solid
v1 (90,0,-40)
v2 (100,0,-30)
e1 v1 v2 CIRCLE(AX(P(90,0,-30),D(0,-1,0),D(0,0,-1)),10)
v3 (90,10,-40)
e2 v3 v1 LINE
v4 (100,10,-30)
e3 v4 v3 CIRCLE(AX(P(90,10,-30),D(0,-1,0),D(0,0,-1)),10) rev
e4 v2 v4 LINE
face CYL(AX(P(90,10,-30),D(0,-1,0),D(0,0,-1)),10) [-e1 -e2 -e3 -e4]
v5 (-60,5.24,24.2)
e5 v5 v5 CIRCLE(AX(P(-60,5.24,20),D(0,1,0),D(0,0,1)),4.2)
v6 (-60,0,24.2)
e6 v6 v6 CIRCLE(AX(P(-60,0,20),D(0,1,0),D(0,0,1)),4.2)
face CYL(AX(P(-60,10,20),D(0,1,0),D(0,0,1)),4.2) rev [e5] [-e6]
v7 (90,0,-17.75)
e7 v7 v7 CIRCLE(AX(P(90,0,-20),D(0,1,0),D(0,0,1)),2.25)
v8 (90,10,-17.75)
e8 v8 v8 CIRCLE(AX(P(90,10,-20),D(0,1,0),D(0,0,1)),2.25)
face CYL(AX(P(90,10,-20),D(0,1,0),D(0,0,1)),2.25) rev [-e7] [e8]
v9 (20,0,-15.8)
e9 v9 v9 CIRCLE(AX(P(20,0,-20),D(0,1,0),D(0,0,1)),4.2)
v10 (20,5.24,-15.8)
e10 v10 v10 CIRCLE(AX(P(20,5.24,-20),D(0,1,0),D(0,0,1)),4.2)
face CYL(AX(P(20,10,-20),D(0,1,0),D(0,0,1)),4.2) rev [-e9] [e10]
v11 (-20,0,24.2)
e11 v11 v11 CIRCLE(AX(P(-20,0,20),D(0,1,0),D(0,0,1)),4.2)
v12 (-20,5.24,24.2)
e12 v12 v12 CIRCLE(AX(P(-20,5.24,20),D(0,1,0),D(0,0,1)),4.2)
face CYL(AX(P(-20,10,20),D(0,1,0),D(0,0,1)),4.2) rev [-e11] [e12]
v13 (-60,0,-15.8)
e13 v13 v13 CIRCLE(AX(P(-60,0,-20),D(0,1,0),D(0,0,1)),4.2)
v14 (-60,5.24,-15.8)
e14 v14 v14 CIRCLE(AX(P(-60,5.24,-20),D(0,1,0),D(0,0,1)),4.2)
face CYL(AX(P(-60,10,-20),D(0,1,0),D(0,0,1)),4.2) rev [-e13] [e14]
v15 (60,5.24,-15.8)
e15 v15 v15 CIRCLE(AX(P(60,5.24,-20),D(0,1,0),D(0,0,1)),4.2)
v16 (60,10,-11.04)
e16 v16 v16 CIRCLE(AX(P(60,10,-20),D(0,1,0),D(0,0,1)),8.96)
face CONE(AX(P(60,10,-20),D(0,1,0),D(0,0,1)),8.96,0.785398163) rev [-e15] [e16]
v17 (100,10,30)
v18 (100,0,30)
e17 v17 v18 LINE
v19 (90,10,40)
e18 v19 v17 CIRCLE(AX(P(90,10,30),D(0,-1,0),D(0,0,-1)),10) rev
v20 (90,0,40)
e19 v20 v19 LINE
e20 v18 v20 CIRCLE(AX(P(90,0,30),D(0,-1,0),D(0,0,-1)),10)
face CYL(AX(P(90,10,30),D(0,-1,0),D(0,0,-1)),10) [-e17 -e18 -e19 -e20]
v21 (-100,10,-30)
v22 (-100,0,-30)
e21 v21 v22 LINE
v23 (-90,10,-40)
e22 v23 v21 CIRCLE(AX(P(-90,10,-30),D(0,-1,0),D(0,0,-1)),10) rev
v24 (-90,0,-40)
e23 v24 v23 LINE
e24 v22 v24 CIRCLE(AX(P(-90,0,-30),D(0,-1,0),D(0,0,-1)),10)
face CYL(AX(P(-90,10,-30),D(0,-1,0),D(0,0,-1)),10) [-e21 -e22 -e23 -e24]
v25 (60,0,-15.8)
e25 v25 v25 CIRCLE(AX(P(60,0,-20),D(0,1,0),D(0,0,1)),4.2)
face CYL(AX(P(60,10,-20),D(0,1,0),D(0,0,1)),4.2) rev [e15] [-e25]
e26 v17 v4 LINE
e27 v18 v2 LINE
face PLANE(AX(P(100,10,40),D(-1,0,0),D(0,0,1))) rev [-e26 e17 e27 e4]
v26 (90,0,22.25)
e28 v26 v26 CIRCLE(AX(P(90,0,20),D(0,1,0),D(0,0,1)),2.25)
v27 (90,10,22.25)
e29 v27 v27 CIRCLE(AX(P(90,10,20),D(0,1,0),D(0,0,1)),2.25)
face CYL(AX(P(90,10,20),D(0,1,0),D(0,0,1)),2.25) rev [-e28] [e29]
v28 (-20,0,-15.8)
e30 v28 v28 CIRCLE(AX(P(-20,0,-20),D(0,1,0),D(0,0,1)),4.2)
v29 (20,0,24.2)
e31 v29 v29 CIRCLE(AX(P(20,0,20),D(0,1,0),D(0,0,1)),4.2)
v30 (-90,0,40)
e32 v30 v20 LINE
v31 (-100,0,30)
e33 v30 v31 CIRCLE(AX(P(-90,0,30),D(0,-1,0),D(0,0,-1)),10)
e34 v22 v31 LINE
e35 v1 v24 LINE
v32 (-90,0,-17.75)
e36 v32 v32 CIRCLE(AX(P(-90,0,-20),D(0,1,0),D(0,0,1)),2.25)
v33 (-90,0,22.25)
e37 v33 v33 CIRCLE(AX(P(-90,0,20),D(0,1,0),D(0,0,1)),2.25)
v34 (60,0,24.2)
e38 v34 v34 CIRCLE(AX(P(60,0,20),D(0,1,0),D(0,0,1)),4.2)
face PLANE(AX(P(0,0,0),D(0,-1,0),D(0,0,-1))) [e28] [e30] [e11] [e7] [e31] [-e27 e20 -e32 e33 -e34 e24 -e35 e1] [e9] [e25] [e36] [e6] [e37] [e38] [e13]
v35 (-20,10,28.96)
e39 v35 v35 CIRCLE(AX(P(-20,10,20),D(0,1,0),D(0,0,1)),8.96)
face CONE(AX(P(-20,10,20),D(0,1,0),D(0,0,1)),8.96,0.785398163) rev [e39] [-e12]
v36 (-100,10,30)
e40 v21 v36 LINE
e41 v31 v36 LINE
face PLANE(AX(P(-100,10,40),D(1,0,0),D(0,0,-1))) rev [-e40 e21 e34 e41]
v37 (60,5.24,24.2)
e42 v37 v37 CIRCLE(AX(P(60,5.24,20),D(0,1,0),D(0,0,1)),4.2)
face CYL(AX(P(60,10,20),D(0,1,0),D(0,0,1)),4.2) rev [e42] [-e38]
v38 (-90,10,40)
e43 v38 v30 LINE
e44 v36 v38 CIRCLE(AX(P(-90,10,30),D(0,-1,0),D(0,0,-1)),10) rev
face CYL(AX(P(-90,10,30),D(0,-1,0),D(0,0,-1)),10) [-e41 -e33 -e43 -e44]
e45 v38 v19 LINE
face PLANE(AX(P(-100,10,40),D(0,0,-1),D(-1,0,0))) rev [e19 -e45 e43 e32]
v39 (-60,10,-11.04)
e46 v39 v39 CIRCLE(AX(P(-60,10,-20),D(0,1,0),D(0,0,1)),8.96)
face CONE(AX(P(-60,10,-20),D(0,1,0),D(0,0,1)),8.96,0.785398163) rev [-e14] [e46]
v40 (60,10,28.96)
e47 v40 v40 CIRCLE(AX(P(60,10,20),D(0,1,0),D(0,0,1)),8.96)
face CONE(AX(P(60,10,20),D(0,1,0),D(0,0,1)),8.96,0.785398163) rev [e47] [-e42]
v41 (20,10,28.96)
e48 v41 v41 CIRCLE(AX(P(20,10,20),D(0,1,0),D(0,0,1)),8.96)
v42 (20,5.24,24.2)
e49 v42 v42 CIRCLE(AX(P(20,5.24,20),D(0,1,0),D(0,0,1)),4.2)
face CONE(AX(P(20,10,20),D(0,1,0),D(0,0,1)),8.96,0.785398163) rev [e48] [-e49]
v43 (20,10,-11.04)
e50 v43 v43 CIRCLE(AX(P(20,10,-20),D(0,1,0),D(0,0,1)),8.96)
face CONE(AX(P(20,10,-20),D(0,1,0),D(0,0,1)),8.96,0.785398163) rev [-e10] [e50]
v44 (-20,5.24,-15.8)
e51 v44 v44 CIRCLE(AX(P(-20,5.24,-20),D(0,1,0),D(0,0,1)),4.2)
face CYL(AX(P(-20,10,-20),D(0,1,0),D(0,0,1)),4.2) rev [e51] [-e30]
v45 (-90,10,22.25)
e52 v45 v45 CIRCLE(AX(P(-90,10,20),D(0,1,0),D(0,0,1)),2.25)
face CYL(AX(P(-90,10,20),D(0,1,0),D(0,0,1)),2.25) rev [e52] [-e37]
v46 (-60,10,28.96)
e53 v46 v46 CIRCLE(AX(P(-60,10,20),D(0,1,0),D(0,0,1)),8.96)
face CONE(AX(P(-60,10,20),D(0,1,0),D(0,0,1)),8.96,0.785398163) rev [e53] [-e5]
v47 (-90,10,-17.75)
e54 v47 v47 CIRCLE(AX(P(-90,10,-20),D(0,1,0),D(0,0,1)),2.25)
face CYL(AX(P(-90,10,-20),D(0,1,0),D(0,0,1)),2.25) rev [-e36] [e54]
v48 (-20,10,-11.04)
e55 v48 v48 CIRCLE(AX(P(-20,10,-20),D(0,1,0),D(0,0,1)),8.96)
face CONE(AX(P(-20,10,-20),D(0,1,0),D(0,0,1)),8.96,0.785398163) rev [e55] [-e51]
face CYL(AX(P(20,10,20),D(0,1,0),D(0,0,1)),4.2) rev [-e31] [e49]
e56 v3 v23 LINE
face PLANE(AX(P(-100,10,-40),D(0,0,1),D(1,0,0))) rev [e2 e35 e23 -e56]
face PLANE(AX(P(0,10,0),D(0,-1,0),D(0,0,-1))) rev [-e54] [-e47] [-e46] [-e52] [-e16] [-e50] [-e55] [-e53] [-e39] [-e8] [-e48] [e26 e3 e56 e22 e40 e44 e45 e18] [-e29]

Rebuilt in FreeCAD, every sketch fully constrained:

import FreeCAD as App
import Part
import Sketcher
Q = App.Units.Quantity


def edges_at(feature, points):
    """Names of the edges that pass closest to the given points."""
    edges = feature.Shape.Edges
    near = lambda p: min(range(len(edges)), key=lambda i: edges[i].distToShape(Part.Vertex(*p))[0])
    return sorted({f"Edge{near(p) + 1}" for p in points})


def add_polygon(sketch, points):
    """Adds a closed chain of lines whose ends are joined by coincident constraints."""
    first, n = sketch.GeometryCount, len(points)
    for a, b in zip(points, points[1:] + points[:1]):
        sketch.addGeometry(Part.LineSegment(App.Vector(*a, 0), App.Vector(*b, 0)), False)
    for i in range(n):
        sketch.addConstraint(Sketcher.Constraint("Coincident", first + i, 2, first + (i + 1) % n, 1))

doc = App.newDocument("Part")
body = doc.addObject("PartDesign::Body", "Body")

# Sketch on XZ plane
sketch1 = body.newObject("Sketcher::SketchObject", "Sketch")
sketch1.AttachmentSupport = (doc.getObject("XZ_Plane"), [""])
sketch1.MapMode = "FlatFace"
add_polygon(sketch1, [(-100, -40), (-100, 40), (100, 40), (100, -40)])  # lines 0-3
sketch1.addConstraint(Sketcher.Constraint("Vertical", 0))
sketch1.addConstraint(Sketcher.Constraint("Horizontal", 1))
sketch1.addConstraint(Sketcher.Constraint("Vertical", 2))
sketch1.addConstraint(Sketcher.Constraint("Horizontal", 3))
sketch1.addConstraint(Sketcher.Constraint("Symmetric", 0, 2, 2, 2, -1, 1))
sketch1.addConstraint(Sketcher.Constraint("DistanceX", 1, 1, 1, 2, Q("200 mm")))
sketch1.addConstraint(Sketcher.Constraint("DistanceY", 0, 1, 0, 2, Q("80 mm")))
pad1 = body.newObject("PartDesign::Pad", "Pad")
pad1.Profile = sketch1
pad1.Length = 10
pad1.Reversed = True

# Sketch on XZ plane
sketch2 = body.newObject("Sketcher::SketchObject", "Sketch001")
sketch2.AttachmentSupport = (doc.getObject("XZ_Plane"), [""])
sketch2.MapMode = "FlatFace"
sketch2.AttachmentOffset = App.Placement(App.Vector(0, 0, -10), App.Rotation())
sketch2.addGeometry(Part.Circle(App.Vector(-20, -20, 0), App.Vector(0, 0, 1), 4.2), False)
sketch2.addGeometry(Part.Circle(App.Vector(20, 20, 0), App.Vector(0, 0, 1), 4.2), False)
sketch2.addGeometry(Part.Circle(App.Vector(60, 20, 0), App.Vector(0, 0, 1), 4.2), False)
sketch2.addGeometry(Part.Circle(App.Vector(-20, 20, 0), App.Vector(0, 0, 1), 4.2), False)
sketch2.addGeometry(Part.Circle(App.Vector(-60, 20, 0), App.Vector(0, 0, 1), 4.2), False)
sketch2.addGeometry(Part.Circle(App.Vector(60, -20, 0), App.Vector(0, 0, 1), 4.2), False)
sketch2.addGeometry(Part.Circle(App.Vector(20, -20, 0), App.Vector(0, 0, 1), 4.2), False)
sketch2.addGeometry(Part.Circle(App.Vector(-60, -20, 0), App.Vector(0, 0, 1), 4.2), False)
sketch2.addConstraint(Sketcher.Constraint("Equal", 0, 1))
sketch2.addConstraint(Sketcher.Constraint("Equal", 1, 2))
sketch2.addConstraint(Sketcher.Constraint("Equal", 2, 3))
sketch2.addConstraint(Sketcher.Constraint("Equal", 3, 4))
sketch2.addConstraint(Sketcher.Constraint("Equal", 4, 5))
sketch2.addConstraint(Sketcher.Constraint("Equal", 5, 6))
sketch2.addConstraint(Sketcher.Constraint("Equal", 6, 7))
sketch2.addConstraint(Sketcher.Constraint("Symmetric", 0, 3, 1, 3, -1, 1))
sketch2.addConstraint(Sketcher.Constraint("Symmetric", 4, 3, 5, 3, -1, 1))
sketch2.addConstraint(Sketcher.Constraint("Symmetric", 3, 3, 6, 3, -1, 1))
sketch2.addConstraint(Sketcher.Constraint("Symmetric", 2, 3, 7, 3, -1, 1))
sketch2.addConstraint(Sketcher.Constraint("Symmetric", 1, 3, 3, 3, -2))
sketch2.addConstraint(Sketcher.Constraint("Symmetric", 2, 3, 4, 3, -2))
sketch2.addConstraint(Sketcher.Constraint("Horizontal", 1, 3, 2, 3))
sketch2.addConstraint(Sketcher.Constraint("Diameter", 0, Q("8.4 mm")))
sketch2.addConstraint(Sketcher.Constraint("DistanceX", 0, 3, -1, 1, Q("20 mm")))
sketch2.addConstraint(Sketcher.Constraint("DistanceY", 0, 3, -1, 1, Q("20 mm")))
sketch2.addConstraint(Sketcher.Constraint("DistanceX", -1, 1, 2, 3, Q("60 mm")))
doc.recompute()
hole = body.newObject("PartDesign::Hole", "Hole")
hole.Profile = sketch2
hole.ThreadType = "None"
hole.Diameter = 8.4
hole.DepthType = "ThroughAll"
hole.HoleCutType = "Countersink"
hole.HoleCutDiameter = 17.92
hole.HoleCutCountersinkAngle = 90
hole.Reversed = True

# Sketch on XZ plane
sketch3 = body.newObject("Sketcher::SketchObject", "Sketch002")
sketch3.AttachmentSupport = (doc.getObject("XZ_Plane"), [""])
sketch3.MapMode = "FlatFace"
sketch3.AttachmentOffset = App.Placement(App.Vector(0, 0, -10), App.Rotation())
sketch3.addGeometry(Part.Circle(App.Vector(-90, -20, 0), App.Vector(0, 0, 1), 2.2), False)
sketch3.addGeometry(Part.Circle(App.Vector(90, -20, 0), App.Vector(0, 0, 1), 2.2), False)
sketch3.addGeometry(Part.Circle(App.Vector(90, 20, 0), App.Vector(0, 0, 1), 2.2), False)
sketch3.addGeometry(Part.Circle(App.Vector(-90, 20, 0), App.Vector(0, 0, 1), 2.2), False)
sketch3.addConstraint(Sketcher.Constraint("Equal", 0, 1))
sketch3.addConstraint(Sketcher.Constraint("Equal", 1, 2))
sketch3.addConstraint(Sketcher.Constraint("Equal", 2, 3))
sketch3.addConstraint(Sketcher.Constraint("Symmetric", 0, 3, 2, 3, -1, 1))
sketch3.addConstraint(Sketcher.Constraint("Symmetric", 1, 3, 3, 3, -1, 1))
sketch3.addConstraint(Sketcher.Constraint("Symmetric", 0, 3, 1, 3, -2))
sketch3.addConstraint(Sketcher.Constraint("Diameter", 0, Q("4.5 mm")))
sketch3.addConstraint(Sketcher.Constraint("DistanceX", 0, 3, -1, 1, Q("90 mm")))
sketch3.addConstraint(Sketcher.Constraint("DistanceY", 0, 3, -1, 1, Q("20 mm")))
doc.recompute()
hole2 = body.newObject("PartDesign::Hole", "Hole001")
hole2.Profile = sketch3
hole2.ThreadType = "None"
hole2.Diameter = 4.5
hole2.DepthType = "ThroughAll"
hole2.Reversed = True
doc.recompute()

fillet = body.newObject("PartDesign::Fillet", "Fillet")
fillet.Base = (hole2, edges_at(hole2, [
    (100, 5, 40),
    (-100, 5, 40),
    (-100, 5, -40),
    (100, 5, -40),
]))
fillet.Radius = 10

doc.recompute()
